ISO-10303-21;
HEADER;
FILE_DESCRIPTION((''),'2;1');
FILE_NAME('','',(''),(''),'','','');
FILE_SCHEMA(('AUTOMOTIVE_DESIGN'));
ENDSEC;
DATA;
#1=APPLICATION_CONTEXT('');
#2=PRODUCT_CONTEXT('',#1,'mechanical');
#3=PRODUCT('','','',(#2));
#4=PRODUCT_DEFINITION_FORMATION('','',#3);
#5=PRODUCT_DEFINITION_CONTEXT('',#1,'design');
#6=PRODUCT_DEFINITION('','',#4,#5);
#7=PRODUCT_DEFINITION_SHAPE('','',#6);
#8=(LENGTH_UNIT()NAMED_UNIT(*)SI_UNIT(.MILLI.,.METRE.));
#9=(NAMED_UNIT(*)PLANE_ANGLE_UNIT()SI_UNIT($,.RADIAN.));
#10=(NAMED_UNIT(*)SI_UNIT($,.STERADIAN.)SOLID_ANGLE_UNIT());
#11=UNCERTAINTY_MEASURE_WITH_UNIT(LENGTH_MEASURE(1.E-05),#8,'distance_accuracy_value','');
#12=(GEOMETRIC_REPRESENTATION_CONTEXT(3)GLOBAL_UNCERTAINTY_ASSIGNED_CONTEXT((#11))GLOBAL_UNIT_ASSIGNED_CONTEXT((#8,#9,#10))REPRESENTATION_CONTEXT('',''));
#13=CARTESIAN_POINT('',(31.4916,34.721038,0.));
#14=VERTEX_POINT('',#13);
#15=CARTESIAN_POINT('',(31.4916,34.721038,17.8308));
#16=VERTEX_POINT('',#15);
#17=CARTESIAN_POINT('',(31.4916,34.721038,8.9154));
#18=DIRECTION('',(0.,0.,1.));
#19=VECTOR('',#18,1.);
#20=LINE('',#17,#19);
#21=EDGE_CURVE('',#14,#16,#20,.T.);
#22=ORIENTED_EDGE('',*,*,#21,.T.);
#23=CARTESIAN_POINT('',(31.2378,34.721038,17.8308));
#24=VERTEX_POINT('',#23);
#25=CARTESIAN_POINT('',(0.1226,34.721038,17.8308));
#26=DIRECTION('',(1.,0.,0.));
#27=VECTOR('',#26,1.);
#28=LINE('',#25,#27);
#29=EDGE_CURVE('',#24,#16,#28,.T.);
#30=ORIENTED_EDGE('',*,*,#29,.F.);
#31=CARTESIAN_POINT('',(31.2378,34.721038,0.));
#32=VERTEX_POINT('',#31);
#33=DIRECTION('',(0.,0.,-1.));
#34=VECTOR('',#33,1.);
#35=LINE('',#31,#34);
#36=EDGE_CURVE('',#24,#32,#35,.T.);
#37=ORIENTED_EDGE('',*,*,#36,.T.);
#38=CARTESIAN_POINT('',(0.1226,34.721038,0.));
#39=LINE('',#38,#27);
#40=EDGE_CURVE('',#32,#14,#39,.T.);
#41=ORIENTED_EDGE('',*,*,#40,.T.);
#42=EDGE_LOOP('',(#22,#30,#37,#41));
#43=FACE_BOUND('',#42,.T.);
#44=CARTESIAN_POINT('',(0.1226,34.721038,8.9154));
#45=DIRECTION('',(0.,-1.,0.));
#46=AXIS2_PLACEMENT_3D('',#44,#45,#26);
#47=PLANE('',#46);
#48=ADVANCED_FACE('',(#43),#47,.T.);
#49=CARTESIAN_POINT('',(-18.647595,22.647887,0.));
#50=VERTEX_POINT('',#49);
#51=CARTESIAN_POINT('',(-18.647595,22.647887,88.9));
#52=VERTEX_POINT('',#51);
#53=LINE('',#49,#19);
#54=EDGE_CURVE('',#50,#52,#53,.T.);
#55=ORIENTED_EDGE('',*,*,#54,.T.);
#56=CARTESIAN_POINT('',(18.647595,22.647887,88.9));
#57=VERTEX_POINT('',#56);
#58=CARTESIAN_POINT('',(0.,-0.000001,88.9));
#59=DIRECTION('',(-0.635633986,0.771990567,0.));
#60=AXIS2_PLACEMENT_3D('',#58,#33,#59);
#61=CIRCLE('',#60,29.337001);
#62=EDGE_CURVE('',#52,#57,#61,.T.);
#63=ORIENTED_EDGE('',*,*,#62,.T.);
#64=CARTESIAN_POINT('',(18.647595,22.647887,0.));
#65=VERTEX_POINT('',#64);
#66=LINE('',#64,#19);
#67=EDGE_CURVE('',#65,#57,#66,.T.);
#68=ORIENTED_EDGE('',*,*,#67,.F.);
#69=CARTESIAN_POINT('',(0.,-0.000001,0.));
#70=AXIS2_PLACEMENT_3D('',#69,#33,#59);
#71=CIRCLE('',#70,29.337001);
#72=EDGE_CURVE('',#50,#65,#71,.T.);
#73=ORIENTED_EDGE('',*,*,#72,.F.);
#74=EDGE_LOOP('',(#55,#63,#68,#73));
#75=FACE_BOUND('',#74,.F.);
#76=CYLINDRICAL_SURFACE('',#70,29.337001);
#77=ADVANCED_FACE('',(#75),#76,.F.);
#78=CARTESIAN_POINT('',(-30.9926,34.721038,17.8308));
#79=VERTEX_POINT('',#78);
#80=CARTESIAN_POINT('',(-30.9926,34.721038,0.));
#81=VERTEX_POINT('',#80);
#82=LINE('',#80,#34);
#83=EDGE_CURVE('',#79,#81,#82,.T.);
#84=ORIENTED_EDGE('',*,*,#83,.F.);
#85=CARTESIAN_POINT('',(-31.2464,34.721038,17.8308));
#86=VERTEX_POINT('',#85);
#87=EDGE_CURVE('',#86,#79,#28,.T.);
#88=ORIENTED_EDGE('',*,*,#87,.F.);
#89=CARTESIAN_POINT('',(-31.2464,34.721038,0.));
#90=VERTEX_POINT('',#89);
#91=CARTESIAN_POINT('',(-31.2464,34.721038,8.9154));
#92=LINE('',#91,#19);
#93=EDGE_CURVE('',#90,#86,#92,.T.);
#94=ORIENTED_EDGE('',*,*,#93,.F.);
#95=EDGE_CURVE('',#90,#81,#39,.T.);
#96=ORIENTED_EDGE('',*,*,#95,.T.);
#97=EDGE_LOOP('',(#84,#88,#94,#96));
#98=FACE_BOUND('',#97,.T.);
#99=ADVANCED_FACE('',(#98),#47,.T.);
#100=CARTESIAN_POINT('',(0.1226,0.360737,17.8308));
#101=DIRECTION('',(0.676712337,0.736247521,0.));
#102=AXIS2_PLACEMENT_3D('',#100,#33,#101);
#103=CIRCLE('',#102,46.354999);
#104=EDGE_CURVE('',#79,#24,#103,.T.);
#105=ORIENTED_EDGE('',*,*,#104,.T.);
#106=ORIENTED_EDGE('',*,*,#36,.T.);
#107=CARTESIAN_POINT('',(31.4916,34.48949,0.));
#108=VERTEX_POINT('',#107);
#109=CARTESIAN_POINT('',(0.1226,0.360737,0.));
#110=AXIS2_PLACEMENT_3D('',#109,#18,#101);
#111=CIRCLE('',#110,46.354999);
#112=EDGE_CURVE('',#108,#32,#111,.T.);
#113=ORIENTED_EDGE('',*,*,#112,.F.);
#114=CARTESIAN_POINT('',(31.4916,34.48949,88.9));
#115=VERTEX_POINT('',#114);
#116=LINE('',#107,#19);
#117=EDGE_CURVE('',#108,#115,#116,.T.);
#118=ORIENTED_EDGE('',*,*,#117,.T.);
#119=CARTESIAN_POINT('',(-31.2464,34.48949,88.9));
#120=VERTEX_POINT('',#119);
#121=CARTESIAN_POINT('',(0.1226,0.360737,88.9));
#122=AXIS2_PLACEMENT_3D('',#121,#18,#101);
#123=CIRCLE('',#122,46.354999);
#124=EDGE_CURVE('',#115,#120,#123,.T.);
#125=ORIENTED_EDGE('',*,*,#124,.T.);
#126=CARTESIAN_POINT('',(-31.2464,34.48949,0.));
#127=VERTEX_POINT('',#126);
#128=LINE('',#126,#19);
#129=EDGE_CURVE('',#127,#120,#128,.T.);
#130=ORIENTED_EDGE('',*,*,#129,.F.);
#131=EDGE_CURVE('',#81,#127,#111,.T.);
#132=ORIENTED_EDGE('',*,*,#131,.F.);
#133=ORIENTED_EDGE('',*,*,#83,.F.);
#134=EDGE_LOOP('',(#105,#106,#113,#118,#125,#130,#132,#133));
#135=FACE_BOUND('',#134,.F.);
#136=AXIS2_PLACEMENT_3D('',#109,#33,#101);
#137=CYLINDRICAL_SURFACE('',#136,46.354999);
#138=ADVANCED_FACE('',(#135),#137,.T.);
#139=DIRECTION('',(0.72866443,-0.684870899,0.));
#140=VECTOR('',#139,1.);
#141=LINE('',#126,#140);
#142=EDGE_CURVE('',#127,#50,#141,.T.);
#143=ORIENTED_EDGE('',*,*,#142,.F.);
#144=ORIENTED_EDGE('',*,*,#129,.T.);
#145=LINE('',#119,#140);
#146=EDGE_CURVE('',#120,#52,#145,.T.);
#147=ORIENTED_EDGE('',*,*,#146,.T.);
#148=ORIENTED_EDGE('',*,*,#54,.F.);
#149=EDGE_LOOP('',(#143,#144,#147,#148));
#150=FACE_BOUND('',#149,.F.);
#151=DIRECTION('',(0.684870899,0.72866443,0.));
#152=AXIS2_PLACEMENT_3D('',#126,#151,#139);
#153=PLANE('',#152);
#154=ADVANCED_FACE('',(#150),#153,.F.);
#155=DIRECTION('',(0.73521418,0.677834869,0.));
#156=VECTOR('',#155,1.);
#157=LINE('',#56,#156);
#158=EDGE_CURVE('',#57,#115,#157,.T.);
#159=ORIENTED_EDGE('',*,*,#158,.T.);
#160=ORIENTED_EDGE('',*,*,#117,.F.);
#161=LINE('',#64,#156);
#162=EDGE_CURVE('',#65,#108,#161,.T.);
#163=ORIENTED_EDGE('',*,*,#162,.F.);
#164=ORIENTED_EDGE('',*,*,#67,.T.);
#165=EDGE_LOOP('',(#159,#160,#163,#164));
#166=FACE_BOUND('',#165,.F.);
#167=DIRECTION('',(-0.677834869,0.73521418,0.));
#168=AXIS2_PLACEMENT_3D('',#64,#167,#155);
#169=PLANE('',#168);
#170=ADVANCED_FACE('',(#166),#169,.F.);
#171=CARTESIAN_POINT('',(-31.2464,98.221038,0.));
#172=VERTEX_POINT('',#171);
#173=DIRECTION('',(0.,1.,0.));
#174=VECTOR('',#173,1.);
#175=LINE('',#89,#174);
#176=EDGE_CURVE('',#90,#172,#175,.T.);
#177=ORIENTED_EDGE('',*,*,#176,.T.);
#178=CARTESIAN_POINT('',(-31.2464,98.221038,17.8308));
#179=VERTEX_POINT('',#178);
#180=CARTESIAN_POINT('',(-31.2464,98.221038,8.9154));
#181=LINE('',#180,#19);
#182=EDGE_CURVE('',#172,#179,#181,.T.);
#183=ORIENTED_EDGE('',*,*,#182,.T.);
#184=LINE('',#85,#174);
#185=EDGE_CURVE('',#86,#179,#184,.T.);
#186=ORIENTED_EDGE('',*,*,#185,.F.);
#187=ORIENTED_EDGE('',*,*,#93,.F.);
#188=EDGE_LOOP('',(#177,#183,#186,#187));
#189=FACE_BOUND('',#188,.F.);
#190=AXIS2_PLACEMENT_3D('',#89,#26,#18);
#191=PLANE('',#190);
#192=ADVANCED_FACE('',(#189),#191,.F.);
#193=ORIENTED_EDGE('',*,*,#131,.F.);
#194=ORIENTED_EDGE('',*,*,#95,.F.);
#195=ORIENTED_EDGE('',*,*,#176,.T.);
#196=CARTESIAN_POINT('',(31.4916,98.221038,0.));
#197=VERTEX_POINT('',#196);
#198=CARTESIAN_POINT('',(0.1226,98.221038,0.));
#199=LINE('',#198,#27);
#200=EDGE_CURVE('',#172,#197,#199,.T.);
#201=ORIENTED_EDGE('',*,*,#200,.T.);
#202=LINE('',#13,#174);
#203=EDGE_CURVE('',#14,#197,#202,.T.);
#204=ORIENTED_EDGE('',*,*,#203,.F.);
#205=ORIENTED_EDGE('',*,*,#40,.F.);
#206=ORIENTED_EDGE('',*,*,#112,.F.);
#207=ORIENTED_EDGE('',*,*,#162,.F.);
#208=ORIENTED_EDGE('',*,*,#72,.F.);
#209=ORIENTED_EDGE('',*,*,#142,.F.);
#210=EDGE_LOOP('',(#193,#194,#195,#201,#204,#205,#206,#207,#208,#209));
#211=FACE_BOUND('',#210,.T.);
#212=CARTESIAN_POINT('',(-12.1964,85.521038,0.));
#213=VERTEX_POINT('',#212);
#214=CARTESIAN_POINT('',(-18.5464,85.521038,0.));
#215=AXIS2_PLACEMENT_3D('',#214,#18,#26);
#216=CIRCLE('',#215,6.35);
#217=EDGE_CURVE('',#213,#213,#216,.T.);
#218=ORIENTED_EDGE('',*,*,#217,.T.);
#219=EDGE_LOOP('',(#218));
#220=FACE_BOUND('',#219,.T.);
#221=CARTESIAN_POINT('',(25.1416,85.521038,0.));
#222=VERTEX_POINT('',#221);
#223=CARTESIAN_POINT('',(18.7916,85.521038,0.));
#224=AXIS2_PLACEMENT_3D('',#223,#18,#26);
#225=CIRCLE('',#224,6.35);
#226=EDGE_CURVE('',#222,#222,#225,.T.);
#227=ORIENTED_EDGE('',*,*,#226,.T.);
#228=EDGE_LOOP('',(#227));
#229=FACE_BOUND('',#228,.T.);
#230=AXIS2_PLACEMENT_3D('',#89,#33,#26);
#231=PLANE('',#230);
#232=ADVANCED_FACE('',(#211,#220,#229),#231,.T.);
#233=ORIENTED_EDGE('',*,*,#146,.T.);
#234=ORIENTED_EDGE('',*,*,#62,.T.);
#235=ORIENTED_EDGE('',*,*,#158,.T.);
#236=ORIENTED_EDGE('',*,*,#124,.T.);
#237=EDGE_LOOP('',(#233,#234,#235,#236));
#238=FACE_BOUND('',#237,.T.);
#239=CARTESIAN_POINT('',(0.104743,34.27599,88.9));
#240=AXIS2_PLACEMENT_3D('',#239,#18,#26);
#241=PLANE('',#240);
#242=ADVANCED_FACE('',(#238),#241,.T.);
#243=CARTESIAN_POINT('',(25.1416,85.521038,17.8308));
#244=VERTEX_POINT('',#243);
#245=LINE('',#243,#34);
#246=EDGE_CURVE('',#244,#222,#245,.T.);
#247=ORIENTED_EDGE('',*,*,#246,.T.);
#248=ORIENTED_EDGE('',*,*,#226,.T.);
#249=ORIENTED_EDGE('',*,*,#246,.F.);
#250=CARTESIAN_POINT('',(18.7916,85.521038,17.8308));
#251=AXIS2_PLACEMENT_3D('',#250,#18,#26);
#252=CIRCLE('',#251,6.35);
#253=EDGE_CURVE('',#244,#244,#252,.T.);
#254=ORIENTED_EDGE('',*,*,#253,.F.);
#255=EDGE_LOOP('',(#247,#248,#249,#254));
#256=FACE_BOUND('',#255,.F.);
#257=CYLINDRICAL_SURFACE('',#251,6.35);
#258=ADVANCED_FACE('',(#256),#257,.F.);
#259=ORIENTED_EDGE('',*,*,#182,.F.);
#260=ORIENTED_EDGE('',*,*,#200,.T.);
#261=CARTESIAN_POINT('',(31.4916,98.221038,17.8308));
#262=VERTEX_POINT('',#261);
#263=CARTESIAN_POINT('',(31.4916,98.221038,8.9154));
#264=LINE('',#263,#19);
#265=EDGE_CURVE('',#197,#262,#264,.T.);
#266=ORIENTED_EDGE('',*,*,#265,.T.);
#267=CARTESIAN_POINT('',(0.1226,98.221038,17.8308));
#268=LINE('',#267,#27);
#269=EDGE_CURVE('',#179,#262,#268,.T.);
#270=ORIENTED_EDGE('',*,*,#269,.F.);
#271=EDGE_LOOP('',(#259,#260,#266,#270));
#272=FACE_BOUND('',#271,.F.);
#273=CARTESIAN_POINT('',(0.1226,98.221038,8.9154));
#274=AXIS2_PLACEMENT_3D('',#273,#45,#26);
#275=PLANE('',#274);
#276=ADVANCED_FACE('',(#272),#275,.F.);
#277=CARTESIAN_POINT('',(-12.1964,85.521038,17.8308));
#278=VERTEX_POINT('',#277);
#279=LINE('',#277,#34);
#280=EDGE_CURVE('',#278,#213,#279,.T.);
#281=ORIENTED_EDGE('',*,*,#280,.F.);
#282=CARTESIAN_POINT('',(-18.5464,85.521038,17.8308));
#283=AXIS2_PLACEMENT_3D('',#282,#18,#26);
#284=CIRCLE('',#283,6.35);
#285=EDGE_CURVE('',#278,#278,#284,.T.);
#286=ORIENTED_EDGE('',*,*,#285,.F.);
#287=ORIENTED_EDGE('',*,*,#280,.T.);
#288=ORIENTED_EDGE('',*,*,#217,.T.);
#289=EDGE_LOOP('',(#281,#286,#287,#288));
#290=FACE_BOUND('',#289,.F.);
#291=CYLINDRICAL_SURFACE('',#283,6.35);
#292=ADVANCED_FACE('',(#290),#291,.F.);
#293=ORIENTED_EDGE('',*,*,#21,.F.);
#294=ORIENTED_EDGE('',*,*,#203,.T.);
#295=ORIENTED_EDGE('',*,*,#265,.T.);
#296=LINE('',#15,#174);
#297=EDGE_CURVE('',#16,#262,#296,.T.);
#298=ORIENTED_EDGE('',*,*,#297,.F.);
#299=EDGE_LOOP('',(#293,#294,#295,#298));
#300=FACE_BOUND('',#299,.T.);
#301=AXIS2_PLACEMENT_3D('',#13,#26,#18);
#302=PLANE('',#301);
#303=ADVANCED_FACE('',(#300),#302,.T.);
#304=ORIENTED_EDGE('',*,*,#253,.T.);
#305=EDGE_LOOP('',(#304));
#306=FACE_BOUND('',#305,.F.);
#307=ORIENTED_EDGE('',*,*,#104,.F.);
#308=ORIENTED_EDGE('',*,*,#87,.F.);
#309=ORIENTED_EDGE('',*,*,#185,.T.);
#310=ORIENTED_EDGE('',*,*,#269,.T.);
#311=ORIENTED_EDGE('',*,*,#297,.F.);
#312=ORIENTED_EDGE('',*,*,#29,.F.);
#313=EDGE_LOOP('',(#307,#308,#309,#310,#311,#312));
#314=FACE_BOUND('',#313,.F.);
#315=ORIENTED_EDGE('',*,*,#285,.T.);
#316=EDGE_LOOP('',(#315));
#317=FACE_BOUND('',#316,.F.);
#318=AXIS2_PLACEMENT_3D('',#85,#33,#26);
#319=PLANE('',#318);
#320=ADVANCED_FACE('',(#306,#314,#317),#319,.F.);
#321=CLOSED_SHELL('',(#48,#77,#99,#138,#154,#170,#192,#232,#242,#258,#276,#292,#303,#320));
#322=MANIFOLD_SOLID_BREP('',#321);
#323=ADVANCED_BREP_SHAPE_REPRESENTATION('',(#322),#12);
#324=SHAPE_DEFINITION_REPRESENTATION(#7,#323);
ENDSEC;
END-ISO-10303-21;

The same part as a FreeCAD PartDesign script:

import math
import FreeCAD as App
import Part
import Sketcher
Q = App.Units.Quantity


def add_polygon(sketch, points):
    """Adds a closed chain of lines whose ends are joined by coincident constraints."""
    first, n = sketch.GeometryCount, len(points)
    for a, b in zip(points, points[1:] + points[:1]):
        sketch.addGeometry(Part.LineSegment(App.Vector(*a, 0), App.Vector(*b, 0)), False)
    for i in range(n):
        sketch.addConstraint(Sketcher.Constraint("Coincident", first + i, 2, first + (i + 1) % n, 1))

doc = App.newDocument("Part")
body = doc.addObject("PartDesign::Body", "Body")

sketch1 = body.newObject("Sketcher::SketchObject", "Sketch")
sketch1.AttachmentSupport = (doc.getObject("XY_Plane"), [""])
sketch1.MapMode = "FlatFace"
sketch1.addGeometry([
    Part.ArcOfCircle(Part.Circle(App.Vector(0, 0, 0), App.Vector(0, 0, 1), 29), math.radians(51), math.radians(129)),
    Part.LineSegment(App.Vector(19, 23, 0), App.Vector(31, 34, 0)),
    Part.ArcOfCircle(Part.Circle(App.Vector(0, 0, 0), App.Vector(0, 0, 1), 46), math.radians(47), math.radians(133)),
    Part.LineSegment(App.Vector(-31, 34, 0), App.Vector(-19, 23, 0)),
], False)
sketch1.addConstraint([
    Sketcher.Constraint("Coincident", 0, 1, 1, 1),
    Sketcher.Constraint("Coincident", 1, 2, 2, 1),
    Sketcher.Constraint("Coincident", 2, 2, 3, 1),
    Sketcher.Constraint("Coincident", 3, 2, 0, 2),
    Sketcher.Constraint("Coincident", 0, 3, -1, 1),
    Sketcher.Constraint("Horizontal", 1, 2, 2, 2),
    Sketcher.Constraint("Horizontal", 0, 1, 3, 2),
    Sketcher.Constraint("Radius", 0, Q("1.155 in")),
    Sketcher.Constraint("Radius", 2, Q("1.825 in")),
    Sketcher.Constraint("DistanceX", 2, 2, 1, 2, Q("2.47 in")),
    Sketcher.Constraint("DistanceX", -1, 1, 2, 3, Q("0.1226 mm")),
    Sketcher.Constraint("Distance", 3, Q("17.29027 mm")),
    Sketcher.Constraint("DistanceY", -1, 1, 1, 2, Q("34.48949 mm")),
])
pad1 = body.newObject("PartDesign::Pad", "Pad")
pad1.Profile = sketch1
pad1.Length = Q("3.5 in")

sketch2 = body.newObject("Sketcher::SketchObject", "Sketch001")
sketch2.AttachmentSupport = (doc.getObject("XZ_Plane"), [""])
sketch2.MapMode = "FlatFace"
sketch2.AttachmentOffset = App.Placement(App.Vector(0, 0, -34.721038), App.Rotation())
add_polygon(sketch2, [(-31, 18), (-31, 0), (31, 0), (31, 18)])
sketch2.addConstraint([
    Sketcher.Constraint("Vertical", 0),
    Sketcher.Constraint("Horizontal", 1),
    Sketcher.Constraint("Vertical", 2),
    Sketcher.Constraint("Horizontal", 3),
    Sketcher.Constraint("PointOnObject", 0, 2, -1),
    Sketcher.Constraint("DistanceX", 1, 1, 1, 2, Q("2.47 in")),
    Sketcher.Constraint("DistanceY", 0, 2, 0, 1, Q("0.702 in")),
    Sketcher.Constraint("DistanceX", 0, 2, -1, 1, Q("31.2464 mm")),
])
pad2 = body.newObject("PartDesign::Pad", "Pad001")
pad2.Profile = sketch2
pad2.Length = Q("2.5 in")
pad2.Reversed = True

sketch3 = body.newObject("Sketcher::SketchObject", "Sketch002")
sketch3.AttachmentSupport = (doc.getObject("XY_Plane"), [""])
sketch3.MapMode = "FlatFace"
sketch3.AttachmentOffset = App.Placement(App.Vector(0, 0, 0.702 * 25.4), App.Rotation())
sketch3.addGeometry([
    Part.Circle(App.Vector(19, 86, 0), App.Vector(0, 0, 1), 6),
    Part.Circle(App.Vector(-19, 86, 0), App.Vector(0, 0, 1), 6),
], False)
sketch3.addConstraint([
    Sketcher.Constraint("Equal", 0, 1),
    Sketcher.Constraint("Horizontal", 0, 3, 1, 3),
    Sketcher.Constraint("Diameter", 0, Q("0.5 in")),
    Sketcher.Constraint("DistanceX", 1, 3, 0, 3, Q("1.47 in")),
    Sketcher.Constraint("DistanceX", -1, 1, 0, 3, Q("18.7916 mm")),
    Sketcher.Constraint("DistanceY", -1, 1, 0, 3, Q("85.521038 mm")),
])
pocket1 = body.newObject("PartDesign::Pocket", "Pocket")
pocket1.Profile = sketch3
pocket1.Length = Q("1 in")

doc.recompute()
